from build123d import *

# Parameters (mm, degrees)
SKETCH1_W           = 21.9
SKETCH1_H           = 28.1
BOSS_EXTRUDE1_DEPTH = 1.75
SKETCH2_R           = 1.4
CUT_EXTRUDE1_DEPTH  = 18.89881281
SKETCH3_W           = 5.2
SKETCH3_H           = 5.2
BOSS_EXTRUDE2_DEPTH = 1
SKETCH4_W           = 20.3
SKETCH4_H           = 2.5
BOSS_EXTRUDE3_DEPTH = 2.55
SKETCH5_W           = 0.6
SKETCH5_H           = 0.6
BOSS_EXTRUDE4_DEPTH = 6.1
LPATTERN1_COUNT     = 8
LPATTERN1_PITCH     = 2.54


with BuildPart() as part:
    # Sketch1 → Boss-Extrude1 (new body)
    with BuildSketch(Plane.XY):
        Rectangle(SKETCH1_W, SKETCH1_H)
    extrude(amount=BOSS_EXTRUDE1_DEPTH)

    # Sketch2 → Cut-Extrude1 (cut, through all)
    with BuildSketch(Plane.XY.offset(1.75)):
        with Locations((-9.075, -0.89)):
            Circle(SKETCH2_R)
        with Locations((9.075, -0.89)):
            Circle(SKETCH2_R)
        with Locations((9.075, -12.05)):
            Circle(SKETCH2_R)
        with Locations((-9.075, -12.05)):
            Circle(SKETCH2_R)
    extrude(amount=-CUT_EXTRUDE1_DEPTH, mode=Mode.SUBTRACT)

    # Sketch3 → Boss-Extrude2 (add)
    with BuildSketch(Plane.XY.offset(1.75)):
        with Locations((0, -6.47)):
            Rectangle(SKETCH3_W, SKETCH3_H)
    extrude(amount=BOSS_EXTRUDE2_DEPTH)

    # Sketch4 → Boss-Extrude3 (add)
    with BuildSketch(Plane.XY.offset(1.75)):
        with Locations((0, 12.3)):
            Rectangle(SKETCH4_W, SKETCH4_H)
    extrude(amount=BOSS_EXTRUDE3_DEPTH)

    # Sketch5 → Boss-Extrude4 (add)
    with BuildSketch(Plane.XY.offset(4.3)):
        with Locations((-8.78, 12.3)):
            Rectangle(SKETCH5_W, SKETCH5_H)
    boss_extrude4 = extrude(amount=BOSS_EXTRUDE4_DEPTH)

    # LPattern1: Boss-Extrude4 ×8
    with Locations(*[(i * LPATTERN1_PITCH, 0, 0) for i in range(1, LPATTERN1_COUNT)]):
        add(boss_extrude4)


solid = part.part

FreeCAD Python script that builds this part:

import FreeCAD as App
import Part
import Sketcher

doc = App.newDocument("Part")
body = doc.addObject("PartDesign::Body", "Body")

sketch1 = body.newObject("Sketcher::SketchObject", "Sketch")
sketch1.AttachmentSupport = (doc.getObject("XY_Plane"), [""])
sketch1.MapMode = "FlatFace"
sketch1.addGeometry([
    Part.LineSegment(App.Vector(-11, 14, 0), App.Vector(-11, -14, 0)),
    Part.LineSegment(App.Vector(-11, -14, 0), App.Vector(11, -14, 0)),
    Part.LineSegment(App.Vector(11, -14, 0), App.Vector(11, 14, 0)),
    Part.LineSegment(App.Vector(11, 14, 0), App.Vector(-11, 14, 0)),
], False)
sketch1.addConstraint([
    Sketcher.Constraint("Coincident", 0, 2, 1, 1),
    Sketcher.Constraint("Coincident", 1, 2, 2, 1),
    Sketcher.Constraint("Coincident", 2, 2, 3, 1),
    Sketcher.Constraint("Coincident", 3, 2, 0, 1),
    Sketcher.Constraint("Vertical", 0),
    Sketcher.Constraint("Horizontal", 1),
    Sketcher.Constraint("Vertical", 2),
    Sketcher.Constraint("Horizontal", 3),
    Sketcher.Constraint("Symmetric", 0, 2, 2, 2, -1, 1),
    Sketcher.Constraint("DistanceX", 1, 1, 1, 2, 21.9),
    Sketcher.Constraint("DistanceY", 0, 2, 0, 1, 28.1),
])
pad1 = body.newObject("PartDesign::Pad", "Pad")
pad1.Profile = sketch1
pad1.Length = 1.75

sketch2 = body.newObject("Sketcher::SketchObject", "Sketch001")
sketch2.AttachmentSupport = (doc.getObject("XY_Plane"), [""])
sketch2.MapMode = "FlatFace"
sketch2.AttachmentOffset = App.Placement(App.Vector(0, 0, 1.75), App.Rotation())
sketch2.addGeometry([
    Part.Circle(App.Vector(-9.1, -0.9, 0), App.Vector(0, 0, 1), 1.4),
    Part.Circle(App.Vector(9.1, -0.9, 0), App.Vector(0, 0, 1), 1.4),
    Part.Circle(App.Vector(9.1, -12.1, 0), App.Vector(0, 0, 1), 1.4),
    Part.Circle(App.Vector(-9.1, -12.1, 0), App.Vector(0, 0, 1), 1.4),
], False)
sketch2.addConstraint([
    Sketcher.Constraint("Equal", 0, 1),
    Sketcher.Constraint("Equal", 1, 2),
    Sketcher.Constraint("Equal", 2, 3),
    Sketcher.Constraint("Symmetric", 0, 3, 1, 3, -2),
    Sketcher.Constraint("Symmetric", 2, 3, 3, 3, -2),
    Sketcher.Constraint("Vertical", 1, 3, 2, 3),
    Sketcher.Constraint("Diameter", 0, 2.8),
    Sketcher.Constraint("DistanceY", 0, 3, -1, 1, 0.89),
    Sketcher.Constraint("DistanceY", 2, 3, -1, 1, 12.05),
    Sketcher.Constraint("DistanceX", 0, 3, 1, 3, 18.15),
])
pocket1 = body.newObject("PartDesign::Pocket", "Pocket")
pocket1.Profile = sketch2
pocket1.Type = "ThroughAll"

sketch3 = body.newObject("Sketcher::SketchObject", "Sketch002")
sketch3.AttachmentSupport = (doc.getObject("XY_Plane"), [""])
sketch3.MapMode = "FlatFace"
sketch3.AttachmentOffset = App.Placement(App.Vector(0, 0, 1.75), App.Rotation())
sketch3.addGeometry([
    Part.LineSegment(App.Vector(-3, -4, 0), App.Vector(-3, -9, 0)),
    Part.LineSegment(App.Vector(-3, -9, 0), App.Vector(3, -9, 0)),
    Part.LineSegment(App.Vector(3, -9, 0), App.Vector(3, -4, 0)),
    Part.LineSegment(App.Vector(3, -4, 0), App.Vector(-3, -4, 0)),
], False)
sketch3.addConstraint([
    Sketcher.Constraint("Coincident", 0, 2, 1, 1),
    Sketcher.Constraint("Coincident", 1, 2, 2, 1),
    Sketcher.Constraint("Coincident", 2, 2, 3, 1),
    Sketcher.Constraint("Coincident", 3, 2, 0, 1),
    Sketcher.Constraint("Vertical", 0),
    Sketcher.Constraint("Horizontal", 1),
    Sketcher.Constraint("Vertical", 2),
    Sketcher.Constraint("Horizontal", 3),
    Sketcher.Constraint("Equal", 3, 0),
    Sketcher.Constraint("DistanceX", 1, 1, 1, 2, 5.2),
    Sketcher.Constraint("DistanceX", 0, 2, -1, 1, 2.6),
    Sketcher.Constraint("DistanceY", 0, 2, -1, 1, 9.07),
])
pad2 = body.newObject("PartDesign::Pad", "Pad001")
pad2.Profile = sketch3
pad2.Length = 1

sketch4 = body.newObject("Sketcher::SketchObject", "Sketch003")
sketch4.AttachmentSupport = (doc.getObject("XY_Plane"), [""])
sketch4.MapMode = "FlatFace"
sketch4.AttachmentOffset = App.Placement(App.Vector(0, 0, 1.75), App.Rotation())
sketch4.addGeometry([
    Part.LineSegment(App.Vector(-10.2, 13.6, 0), App.Vector(-10.2, 11.1, 0)),
    Part.LineSegment(App.Vector(-10.2, 11.1, 0), App.Vector(10.2, 11.1, 0)),
    Part.LineSegment(App.Vector(10.2, 11.1, 0), App.Vector(10.2, 13.6, 0)),
    Part.LineSegment(App.Vector(10.2, 13.6, 0), App.Vector(-10.2, 13.6, 0)),
], False)
sketch4.addConstraint([
    Sketcher.Constraint("Coincident", 0, 2, 1, 1),
    Sketcher.Constraint("Coincident", 1, 2, 2, 1),
    Sketcher.Constraint("Coincident", 2, 2, 3, 1),
    Sketcher.Constraint("Coincident", 3, 2, 0, 1),
    Sketcher.Constraint("Vertical", 0),
    Sketcher.Constraint("Horizontal", 1),
    Sketcher.Constraint("Vertical", 2),
    Sketcher.Constraint("Horizontal", 3),
    Sketcher.Constraint("DistanceX", 1, 1, 1, 2, 20.3),
    Sketcher.Constraint("DistanceY", 0, 2, 0, 1, 2.5),
    Sketcher.Constraint("DistanceX", 0, 2, -1, 1, 10.15),
    Sketcher.Constraint("DistanceY", -1, 1, 0, 2, 11.05),
])
pad3 = body.newObject("PartDesign::Pad", "Pad002")
pad3.Profile = sketch4
pad3.Length = 2.55

sketch5 = body.newObject("Sketcher::SketchObject", "Sketch004")
sketch5.AttachmentSupport = (doc.getObject("XY_Plane"), [""])
sketch5.MapMode = "FlatFace"
sketch5.AttachmentOffset = App.Placement(App.Vector(0, 0, 4.3), App.Rotation())
sketch5.addGeometry([
    Part.LineSegment(App.Vector(-9.1, 12.6, 0), App.Vector(-9.1, 12, 0)),
    Part.LineSegment(App.Vector(-9.1, 12, 0), App.Vector(-8.5, 12, 0)),
    Part.LineSegment(App.Vector(-8.5, 12, 0), App.Vector(-8.5, 12.6, 0)),
    Part.LineSegment(App.Vector(-8.5, 12.6, 0), App.Vector(-9.1, 12.6, 0)),
], False)
sketch5.addConstraint([
    Sketcher.Constraint("Coincident", 0, 2, 1, 1),
    Sketcher.Constraint("Coincident", 1, 2, 2, 1),
    Sketcher.Constraint("Coincident", 2, 2, 3, 1),
    Sketcher.Constraint("Coincident", 3, 2, 0, 1),
    Sketcher.Constraint("Vertical", 0),
    Sketcher.Constraint("Horizontal", 1),
    Sketcher.Constraint("Vertical", 2),
    Sketcher.Constraint("Horizontal", 3),
    Sketcher.Constraint("Equal", 3, 0),
    Sketcher.Constraint("DistanceX", 1, 1, 1, 2, 0.6),
    Sketcher.Constraint("DistanceY", -1, 1, 0, 2, 12.0),
    Sketcher.Constraint("DistanceX", 0, 2, -1, 1, 9.08),
])
pad4 = body.newObject("PartDesign::Pad", "Pad003")
pad4.Profile = sketch5
pad4.Length = 6.1
doc.recompute()

linearpattern = body.newObject("PartDesign::LinearPattern", "LinearPattern")
linearpattern.Originals = [pad4]
linearpattern.Direction = (doc.getObject("X_Axis"), [""])
linearpattern.Mode = "offset"
linearpattern.Offset = 2.54
linearpattern.Occurrences = 8
body.Tip = linearpattern

doc.recompute()
